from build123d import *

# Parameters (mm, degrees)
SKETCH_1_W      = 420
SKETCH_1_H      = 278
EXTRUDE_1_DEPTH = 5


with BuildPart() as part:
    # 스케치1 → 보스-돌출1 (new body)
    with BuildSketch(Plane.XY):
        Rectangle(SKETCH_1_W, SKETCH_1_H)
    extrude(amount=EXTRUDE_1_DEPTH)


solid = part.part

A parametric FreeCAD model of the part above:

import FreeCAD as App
import Part
import Sketcher
Q = App.Units.Quantity

doc = App.newDocument("Part")
body = doc.addObject("PartDesign::Body", "Body")

# Sketch on XY plane
sketch1 = body.newObject("Sketcher::SketchObject", "Sketch")
sketch1.AttachmentSupport = (doc.getObject("XY_Plane"), [""])
sketch1.MapMode = "FlatFace"
sketch1.addGeometry([
    Part.LineSegment(App.Vector(-210, 139, 0), App.Vector(-210, -139, 0)),
    Part.LineSegment(App.Vector(-210, -139, 0), App.Vector(210, -139, 0)),
    Part.LineSegment(App.Vector(210, -139, 0), App.Vector(210, 139, 0)),
    Part.LineSegment(App.Vector(210, 139, 0), App.Vector(-210, 139, 0)),
], False)
sketch1.addConstraint([
    Sketcher.Constraint("Coincident", 0, 2, 1, 1),
    Sketcher.Constraint("Coincident", 1, 2, 2, 1),
    Sketcher.Constraint("Coincident", 2, 2, 3, 1),
    Sketcher.Constraint("Coincident", 3, 2, 0, 1),
    Sketcher.Constraint("Vertical", 0),
    Sketcher.Constraint("Horizontal", 1),
    Sketcher.Constraint("Vertical", 2),
    Sketcher.Constraint("Horizontal", 3),
    Sketcher.Constraint("Symmetric", 0, 2, 2, 2, -1, 1),
    Sketcher.Constraint("DistanceX", 1, 1, 1, 2, Q("420 mm")),
    Sketcher.Constraint("DistanceY", 0, 2, 0, 1, Q("278 mm")),
])
pad1 = body.newObject("PartDesign::Pad", "Pad")
pad1.Profile = sketch1
pad1.Length = 5

doc.recompute()
